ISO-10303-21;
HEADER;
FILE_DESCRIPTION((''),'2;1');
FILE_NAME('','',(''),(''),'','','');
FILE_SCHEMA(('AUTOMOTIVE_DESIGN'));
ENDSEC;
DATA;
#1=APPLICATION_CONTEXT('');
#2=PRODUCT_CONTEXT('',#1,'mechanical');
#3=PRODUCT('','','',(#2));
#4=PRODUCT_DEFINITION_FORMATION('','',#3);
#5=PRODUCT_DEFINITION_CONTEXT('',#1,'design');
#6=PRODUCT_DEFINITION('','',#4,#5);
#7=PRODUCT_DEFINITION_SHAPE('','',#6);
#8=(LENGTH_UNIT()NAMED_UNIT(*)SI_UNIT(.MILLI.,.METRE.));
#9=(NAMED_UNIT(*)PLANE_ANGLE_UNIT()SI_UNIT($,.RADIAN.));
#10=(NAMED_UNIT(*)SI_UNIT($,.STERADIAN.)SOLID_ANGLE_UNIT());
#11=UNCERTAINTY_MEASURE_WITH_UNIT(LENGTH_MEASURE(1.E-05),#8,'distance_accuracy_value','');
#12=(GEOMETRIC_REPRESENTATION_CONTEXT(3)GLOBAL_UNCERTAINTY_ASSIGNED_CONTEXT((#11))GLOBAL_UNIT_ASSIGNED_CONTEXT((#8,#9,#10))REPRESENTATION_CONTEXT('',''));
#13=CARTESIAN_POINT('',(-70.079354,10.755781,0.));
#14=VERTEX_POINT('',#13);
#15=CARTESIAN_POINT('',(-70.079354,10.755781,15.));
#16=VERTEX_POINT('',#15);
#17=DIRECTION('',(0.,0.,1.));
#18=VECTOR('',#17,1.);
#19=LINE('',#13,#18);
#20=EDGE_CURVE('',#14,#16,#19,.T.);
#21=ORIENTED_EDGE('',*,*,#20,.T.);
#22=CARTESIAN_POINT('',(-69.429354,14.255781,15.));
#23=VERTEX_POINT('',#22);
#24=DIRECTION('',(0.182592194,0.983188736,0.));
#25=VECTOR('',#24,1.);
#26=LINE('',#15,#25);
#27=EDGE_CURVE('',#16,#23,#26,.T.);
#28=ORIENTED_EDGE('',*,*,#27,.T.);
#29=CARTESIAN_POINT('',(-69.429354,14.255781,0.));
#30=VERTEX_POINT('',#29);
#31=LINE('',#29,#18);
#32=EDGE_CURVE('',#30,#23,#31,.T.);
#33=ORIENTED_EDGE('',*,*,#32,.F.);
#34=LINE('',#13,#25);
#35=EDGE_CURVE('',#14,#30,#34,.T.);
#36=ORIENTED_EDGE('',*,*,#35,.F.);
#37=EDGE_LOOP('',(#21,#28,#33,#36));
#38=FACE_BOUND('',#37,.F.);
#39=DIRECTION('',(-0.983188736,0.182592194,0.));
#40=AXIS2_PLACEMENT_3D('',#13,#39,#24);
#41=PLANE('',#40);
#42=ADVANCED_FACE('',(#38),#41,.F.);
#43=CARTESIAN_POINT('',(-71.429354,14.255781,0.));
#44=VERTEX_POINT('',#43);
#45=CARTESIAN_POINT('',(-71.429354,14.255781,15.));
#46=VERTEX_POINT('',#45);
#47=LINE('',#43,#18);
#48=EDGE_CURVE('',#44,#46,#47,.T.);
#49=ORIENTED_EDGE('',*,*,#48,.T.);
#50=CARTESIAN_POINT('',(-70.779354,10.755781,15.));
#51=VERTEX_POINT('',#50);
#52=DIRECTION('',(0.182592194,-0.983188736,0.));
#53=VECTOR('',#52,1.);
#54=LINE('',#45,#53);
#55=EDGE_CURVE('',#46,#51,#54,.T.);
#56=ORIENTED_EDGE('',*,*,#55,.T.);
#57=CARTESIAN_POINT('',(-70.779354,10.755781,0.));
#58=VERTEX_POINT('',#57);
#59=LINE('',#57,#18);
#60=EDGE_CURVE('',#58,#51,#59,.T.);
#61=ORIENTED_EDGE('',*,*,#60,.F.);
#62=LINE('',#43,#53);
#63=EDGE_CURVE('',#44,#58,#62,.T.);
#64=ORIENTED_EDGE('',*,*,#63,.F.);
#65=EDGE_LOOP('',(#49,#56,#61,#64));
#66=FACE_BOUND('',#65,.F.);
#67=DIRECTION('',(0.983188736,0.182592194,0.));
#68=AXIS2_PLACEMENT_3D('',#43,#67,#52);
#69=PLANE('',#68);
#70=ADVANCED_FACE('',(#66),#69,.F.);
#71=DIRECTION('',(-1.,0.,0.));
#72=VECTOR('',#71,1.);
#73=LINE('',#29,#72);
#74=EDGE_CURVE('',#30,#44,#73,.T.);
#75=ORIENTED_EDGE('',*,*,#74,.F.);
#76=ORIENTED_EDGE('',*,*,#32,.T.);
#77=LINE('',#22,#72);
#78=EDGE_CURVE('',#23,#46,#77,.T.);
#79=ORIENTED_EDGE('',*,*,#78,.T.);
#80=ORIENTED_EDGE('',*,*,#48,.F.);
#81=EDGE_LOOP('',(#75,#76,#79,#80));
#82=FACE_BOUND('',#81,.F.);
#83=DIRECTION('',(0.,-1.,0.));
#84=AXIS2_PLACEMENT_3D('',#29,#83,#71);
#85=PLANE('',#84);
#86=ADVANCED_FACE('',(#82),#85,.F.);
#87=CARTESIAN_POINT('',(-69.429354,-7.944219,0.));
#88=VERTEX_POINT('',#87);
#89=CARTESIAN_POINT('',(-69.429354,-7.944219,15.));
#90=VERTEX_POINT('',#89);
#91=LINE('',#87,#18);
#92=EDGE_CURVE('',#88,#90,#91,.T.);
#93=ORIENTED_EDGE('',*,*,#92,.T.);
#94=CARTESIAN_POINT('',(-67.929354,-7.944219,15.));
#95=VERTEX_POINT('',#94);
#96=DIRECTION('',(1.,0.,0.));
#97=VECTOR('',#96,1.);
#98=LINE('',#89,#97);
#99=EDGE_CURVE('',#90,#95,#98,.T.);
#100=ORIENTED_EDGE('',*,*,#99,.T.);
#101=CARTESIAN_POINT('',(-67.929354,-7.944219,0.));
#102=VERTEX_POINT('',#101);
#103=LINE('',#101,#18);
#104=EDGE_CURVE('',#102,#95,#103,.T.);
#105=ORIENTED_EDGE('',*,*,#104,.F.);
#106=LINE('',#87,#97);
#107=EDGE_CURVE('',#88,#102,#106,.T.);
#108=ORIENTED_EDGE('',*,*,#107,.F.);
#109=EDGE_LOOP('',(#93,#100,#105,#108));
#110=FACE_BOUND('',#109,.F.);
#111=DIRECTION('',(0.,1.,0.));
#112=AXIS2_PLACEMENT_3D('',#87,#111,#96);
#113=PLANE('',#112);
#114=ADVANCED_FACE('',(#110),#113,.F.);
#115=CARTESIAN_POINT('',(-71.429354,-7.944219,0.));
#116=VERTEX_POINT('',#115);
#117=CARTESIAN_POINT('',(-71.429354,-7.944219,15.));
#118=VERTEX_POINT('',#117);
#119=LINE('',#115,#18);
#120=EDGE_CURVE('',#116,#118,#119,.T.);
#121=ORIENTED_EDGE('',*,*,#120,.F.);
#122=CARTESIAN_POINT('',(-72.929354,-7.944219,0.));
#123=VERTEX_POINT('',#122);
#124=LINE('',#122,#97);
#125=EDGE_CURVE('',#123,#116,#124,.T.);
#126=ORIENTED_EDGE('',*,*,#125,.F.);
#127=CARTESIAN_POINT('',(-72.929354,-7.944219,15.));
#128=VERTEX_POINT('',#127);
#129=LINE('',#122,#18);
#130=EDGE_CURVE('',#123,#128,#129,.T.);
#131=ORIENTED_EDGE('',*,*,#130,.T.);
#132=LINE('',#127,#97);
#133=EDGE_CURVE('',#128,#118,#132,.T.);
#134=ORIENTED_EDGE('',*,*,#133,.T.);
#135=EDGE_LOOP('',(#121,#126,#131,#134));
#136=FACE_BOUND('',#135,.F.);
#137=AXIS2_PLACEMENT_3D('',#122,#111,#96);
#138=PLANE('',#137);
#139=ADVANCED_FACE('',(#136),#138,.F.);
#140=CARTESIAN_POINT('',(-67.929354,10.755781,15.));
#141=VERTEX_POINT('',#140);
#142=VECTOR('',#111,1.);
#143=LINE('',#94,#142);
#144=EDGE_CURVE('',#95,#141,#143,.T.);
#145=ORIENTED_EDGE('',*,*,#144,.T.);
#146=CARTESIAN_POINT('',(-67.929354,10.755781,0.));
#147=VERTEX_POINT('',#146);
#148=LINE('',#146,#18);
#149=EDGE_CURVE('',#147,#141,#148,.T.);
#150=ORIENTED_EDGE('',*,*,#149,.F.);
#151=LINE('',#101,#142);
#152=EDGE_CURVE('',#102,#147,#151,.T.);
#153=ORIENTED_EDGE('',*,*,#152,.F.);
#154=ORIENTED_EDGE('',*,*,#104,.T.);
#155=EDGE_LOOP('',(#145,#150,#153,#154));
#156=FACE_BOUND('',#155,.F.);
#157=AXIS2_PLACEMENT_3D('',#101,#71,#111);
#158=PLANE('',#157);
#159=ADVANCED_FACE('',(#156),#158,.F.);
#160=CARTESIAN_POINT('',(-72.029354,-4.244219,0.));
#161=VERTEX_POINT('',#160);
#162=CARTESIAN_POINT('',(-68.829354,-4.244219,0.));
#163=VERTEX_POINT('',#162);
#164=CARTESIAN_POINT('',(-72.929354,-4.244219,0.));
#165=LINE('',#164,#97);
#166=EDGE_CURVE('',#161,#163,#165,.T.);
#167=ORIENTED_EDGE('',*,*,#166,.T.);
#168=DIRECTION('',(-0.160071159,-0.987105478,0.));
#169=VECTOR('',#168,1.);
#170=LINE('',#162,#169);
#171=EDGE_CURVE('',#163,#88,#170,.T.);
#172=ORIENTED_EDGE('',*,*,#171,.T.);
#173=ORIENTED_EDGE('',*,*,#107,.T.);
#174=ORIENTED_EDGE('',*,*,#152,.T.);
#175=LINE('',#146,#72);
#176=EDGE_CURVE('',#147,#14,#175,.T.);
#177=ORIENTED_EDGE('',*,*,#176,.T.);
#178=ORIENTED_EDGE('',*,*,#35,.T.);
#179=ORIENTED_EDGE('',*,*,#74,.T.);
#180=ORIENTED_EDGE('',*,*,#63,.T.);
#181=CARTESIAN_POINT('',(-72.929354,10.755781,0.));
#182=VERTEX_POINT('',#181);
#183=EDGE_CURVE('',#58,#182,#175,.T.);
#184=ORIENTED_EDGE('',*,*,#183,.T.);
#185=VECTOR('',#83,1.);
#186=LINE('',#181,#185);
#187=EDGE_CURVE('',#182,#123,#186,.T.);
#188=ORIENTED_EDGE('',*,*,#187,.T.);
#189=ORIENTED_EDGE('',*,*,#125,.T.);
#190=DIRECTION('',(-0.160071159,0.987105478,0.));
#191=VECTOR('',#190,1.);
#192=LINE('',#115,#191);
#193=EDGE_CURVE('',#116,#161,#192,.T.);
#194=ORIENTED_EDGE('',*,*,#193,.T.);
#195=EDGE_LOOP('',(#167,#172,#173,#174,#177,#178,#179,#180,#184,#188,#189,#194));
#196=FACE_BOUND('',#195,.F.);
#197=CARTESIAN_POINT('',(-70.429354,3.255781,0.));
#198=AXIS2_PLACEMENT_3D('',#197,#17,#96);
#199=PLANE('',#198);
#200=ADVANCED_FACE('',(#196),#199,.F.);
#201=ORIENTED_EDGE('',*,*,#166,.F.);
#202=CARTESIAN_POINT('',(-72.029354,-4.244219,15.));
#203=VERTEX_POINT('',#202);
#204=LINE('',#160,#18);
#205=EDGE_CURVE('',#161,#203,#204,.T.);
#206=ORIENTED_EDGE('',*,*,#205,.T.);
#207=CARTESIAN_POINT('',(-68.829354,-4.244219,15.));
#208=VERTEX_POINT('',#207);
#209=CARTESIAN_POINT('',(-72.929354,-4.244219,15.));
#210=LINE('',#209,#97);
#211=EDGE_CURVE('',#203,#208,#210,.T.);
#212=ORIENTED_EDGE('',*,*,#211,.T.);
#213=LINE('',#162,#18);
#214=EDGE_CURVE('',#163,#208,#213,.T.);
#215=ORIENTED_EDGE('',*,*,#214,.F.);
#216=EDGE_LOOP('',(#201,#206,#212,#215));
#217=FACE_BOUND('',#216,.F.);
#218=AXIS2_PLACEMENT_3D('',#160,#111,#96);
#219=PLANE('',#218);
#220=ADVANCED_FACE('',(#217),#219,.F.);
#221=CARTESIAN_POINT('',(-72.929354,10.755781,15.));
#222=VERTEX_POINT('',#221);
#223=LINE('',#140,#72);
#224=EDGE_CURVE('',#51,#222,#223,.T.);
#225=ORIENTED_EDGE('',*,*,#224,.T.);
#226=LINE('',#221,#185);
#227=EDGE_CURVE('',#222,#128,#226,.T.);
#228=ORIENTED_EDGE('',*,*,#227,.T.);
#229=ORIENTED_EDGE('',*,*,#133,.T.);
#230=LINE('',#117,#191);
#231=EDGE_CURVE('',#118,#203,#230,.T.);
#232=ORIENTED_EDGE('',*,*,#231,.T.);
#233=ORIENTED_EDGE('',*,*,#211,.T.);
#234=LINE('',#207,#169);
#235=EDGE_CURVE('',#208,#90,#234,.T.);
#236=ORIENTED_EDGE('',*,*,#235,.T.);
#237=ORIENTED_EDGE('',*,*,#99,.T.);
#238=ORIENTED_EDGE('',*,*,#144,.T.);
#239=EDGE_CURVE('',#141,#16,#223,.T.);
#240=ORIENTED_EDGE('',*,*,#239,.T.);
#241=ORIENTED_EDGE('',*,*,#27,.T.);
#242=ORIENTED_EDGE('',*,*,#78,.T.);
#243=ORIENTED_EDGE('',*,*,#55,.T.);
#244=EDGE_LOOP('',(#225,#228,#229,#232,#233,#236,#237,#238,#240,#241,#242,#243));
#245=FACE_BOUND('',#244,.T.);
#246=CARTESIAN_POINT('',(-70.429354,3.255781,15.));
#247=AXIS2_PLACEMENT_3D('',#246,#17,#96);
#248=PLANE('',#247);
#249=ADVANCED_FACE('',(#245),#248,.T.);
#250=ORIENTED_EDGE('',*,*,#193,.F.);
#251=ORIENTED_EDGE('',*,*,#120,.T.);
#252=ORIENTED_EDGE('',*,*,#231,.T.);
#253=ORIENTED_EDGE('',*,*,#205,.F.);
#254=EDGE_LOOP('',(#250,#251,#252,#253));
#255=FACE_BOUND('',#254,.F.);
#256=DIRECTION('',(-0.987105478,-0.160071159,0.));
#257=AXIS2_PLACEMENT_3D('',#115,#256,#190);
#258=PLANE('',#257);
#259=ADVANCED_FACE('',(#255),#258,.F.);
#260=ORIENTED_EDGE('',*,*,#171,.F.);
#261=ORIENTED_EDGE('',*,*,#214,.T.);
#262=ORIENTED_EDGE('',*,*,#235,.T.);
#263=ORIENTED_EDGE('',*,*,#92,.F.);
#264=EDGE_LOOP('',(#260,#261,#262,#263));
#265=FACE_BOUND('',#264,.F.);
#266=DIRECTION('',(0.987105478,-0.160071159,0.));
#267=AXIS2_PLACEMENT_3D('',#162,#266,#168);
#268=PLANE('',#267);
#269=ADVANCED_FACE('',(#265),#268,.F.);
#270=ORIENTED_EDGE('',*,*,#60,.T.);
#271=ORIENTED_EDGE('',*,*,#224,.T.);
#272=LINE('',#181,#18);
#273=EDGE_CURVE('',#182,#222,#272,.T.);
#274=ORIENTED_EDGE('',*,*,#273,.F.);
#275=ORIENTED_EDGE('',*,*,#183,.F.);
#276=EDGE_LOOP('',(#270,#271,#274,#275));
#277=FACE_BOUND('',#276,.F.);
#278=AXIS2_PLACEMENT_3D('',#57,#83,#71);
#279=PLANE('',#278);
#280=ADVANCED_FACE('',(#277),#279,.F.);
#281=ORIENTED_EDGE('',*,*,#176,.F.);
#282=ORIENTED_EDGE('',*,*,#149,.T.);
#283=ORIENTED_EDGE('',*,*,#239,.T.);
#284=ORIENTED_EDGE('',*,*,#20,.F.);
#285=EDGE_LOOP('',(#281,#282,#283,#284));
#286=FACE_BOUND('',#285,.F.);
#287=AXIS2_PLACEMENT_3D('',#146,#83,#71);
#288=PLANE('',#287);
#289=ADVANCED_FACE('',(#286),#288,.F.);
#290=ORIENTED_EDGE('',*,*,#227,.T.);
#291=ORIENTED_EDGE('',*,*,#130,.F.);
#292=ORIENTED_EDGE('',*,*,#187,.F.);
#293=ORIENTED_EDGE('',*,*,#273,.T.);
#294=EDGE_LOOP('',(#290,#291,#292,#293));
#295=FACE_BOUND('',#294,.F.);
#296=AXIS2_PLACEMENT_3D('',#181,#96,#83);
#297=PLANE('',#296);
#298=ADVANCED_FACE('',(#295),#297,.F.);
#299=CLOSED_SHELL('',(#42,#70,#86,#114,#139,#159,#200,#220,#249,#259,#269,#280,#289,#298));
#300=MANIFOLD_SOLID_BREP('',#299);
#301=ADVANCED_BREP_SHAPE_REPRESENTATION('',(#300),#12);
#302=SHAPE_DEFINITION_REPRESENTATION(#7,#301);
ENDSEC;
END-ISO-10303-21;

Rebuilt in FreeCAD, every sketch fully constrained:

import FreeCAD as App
import Part
import Sketcher
from FreeCAD import Vector


def add_polygon(sketch, points):
    """Adds a closed chain of lines whose ends are joined by coincident constraints."""
    first, n = sketch.GeometryCount, len(points)
    for a, b in zip(points, points[1:] + points[:1]):
        sketch.addGeometry(Part.LineSegment(App.Vector(*a, 0), App.Vector(*b, 0)), False)
    for i in range(n):
        sketch.addConstraint(Sketcher.Constraint("Coincident", first + i, 2, first + (i + 1) % n, 1))

doc = App.newDocument("Part")
body = doc.addObject("PartDesign::Body", "Body")

# Sketch on XY plane
sketch1 = doc.addObject("Sketcher::SketchObject", "Sketch")
body.addObject(sketch1)
sketch1.AttachmentSupport = (doc.XY_Plane, [""])
sketch1.MapMode = "FlatFace"
add_polygon(sketch1, [(-72.9, 10.8), (-72.9, -7.9), (-71.4, -7.9), (-72, -4.2), (-68.8, -4.2), (-69.4, -7.9), (-67.9, -7.9), (-67.9, 10.8), (-70.1, 10.8), (-69.4, 14.3), (-71.4, 14.3), (-70.8, 10.8)])  # lines 0-11
sketch1.addConstraint(Sketcher.Constraint("Vertical", 0))
sketch1.addConstraint(Sketcher.Constraint("Horizontal", 1))
sketch1.addConstraint(Sketcher.Constraint("Horizontal", 3))
sketch1.addConstraint(Sketcher.Constraint("Horizontal", 5))
sketch1.addConstraint(Sketcher.Constraint("Vertical", 6))
sketch1.addConstraint(Sketcher.Constraint("Horizontal", 7))
sketch1.addConstraint(Sketcher.Constraint("Horizontal", 9))
sketch1.addConstraint(Sketcher.Constraint("Horizontal", 11))
sketch1.addConstraint(Sketcher.Constraint("Horizontal", 1, 2, 4, 2))
sketch1.addConstraint(Sketcher.Constraint("Horizontal", 7, 2, 10, 2))
sketch1.addConstraint(Sketcher.Constraint("Vertical", 4, 2, 8, 2))
sketch1.addConstraint(Sketcher.Constraint("Vertical", 1, 2, 9, 2))
sketch1.addConstraint(Sketcher.Constraint("Equal", 1, 5))
sketch1.addConstraint(Sketcher.Constraint("Equal", 7, 11))
sketch1.addConstraint(Sketcher.Constraint("Equal", 2, 4))
sketch1.addConstraint(Sketcher.Constraint("DistanceX", 9, 2, 9, 1, 2.0))
sketch1.addConstraint(Sketcher.Constraint("DistanceX", 1, 1, 1, 2, 1.5))
sketch1.addConstraint(Sketcher.Constraint("DistanceX", 3, 1, 3, 2, 3.2))
sketch1.addConstraint(Sketcher.Constraint("DistanceY", 0, 2, 0, 1, 18.7))
sketch1.addConstraint(Sketcher.Constraint("DistanceY", 3, 2, 6, 2, 15.0))
sketch1.addConstraint(Sketcher.Constraint("DistanceX", 7, 2, 7, 1, 2.15))
sketch1.addConstraint(Sketcher.Constraint("DistanceY", 7, 2, 8, 2, 3.5))
sketch1.addConstraint(Sketcher.Constraint("DistanceY", 0, 2, -1, 1, 7.944219))
sketch1.addConstraint(Sketcher.Constraint("DistanceX", 0, 2, -1, 1, 72.929354))
pad1 = doc.addObject("PartDesign::Pad", "Pad")
body.addObject(pad1)
pad1.Profile = sketch1
pad1.Length = 15

doc.recompute()
